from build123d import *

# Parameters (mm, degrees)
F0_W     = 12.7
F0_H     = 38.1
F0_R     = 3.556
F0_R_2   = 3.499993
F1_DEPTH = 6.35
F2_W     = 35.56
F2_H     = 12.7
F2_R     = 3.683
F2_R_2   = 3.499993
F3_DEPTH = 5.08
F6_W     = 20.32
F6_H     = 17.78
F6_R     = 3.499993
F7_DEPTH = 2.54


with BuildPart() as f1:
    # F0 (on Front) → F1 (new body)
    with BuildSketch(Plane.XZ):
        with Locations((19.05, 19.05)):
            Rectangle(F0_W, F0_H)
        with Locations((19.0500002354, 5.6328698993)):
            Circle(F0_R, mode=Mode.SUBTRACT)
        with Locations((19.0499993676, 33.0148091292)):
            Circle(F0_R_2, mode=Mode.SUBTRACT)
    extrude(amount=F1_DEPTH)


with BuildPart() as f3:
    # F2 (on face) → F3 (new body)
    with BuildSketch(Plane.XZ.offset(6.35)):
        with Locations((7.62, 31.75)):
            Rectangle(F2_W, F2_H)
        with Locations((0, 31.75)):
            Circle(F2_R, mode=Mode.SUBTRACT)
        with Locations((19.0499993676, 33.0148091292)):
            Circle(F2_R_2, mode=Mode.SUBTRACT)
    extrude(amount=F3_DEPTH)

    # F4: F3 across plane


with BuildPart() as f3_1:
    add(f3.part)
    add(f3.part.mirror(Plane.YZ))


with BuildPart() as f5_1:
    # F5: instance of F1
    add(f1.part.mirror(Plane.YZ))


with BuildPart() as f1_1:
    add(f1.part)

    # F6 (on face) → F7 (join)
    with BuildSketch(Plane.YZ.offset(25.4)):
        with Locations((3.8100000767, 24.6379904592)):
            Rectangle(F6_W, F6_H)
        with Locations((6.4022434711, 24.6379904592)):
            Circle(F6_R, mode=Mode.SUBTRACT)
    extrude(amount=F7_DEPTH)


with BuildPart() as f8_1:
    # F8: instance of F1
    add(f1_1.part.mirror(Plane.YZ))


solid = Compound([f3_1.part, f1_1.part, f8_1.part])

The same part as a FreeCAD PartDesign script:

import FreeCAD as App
import Part
import Sketcher

V = App.Vector
Q = App.Units.Quantity


def add_polygon(sketch, points):
    """Adds a closed chain of lines whose ends are joined by coincident constraints."""
    first, n = sketch.GeometryCount, len(points)
    for a, b in zip(points, points[1:] + points[:1]):
        sketch.addGeometry(Part.LineSegment(App.Vector(*a, 0), App.Vector(*b, 0)), False)
    for i in range(n):
        sketch.addConstraint(Sketcher.Constraint("Coincident", first + i, 2, first + (i + 1) % n, 1))

doc = App.newDocument("Part")
params = doc.addObject("Spreadsheet::Sheet", "Params")
for row, (alias, value) in enumerate([
    ("sketch1_diameter", "0.28 in"),
    ("sketch1_width", "0.5 in"),
    ("sketch1_height", "1.5 in"),
    ("pad1_length", "0.25 in"),
    ("sketch2_diameter", "0.29 in"),
    ("sketch2_width", "1.4 in"),
    ("sketch2_height", "0.5 in"),
    ("pad2_length", "0.2 in"),
    ("sketch3_width", "0.8 in"),
    ("sketch3_height", "0.7 in"),
    ("pad3_length", "0.1 in"),
], start=1):
    params.set(f"A{row}", alias)
    params.set(f"B{row}", "=" + value)
    params.setAlias(f"B{row}", alias)

body = doc.addObject("PartDesign::Body", "Body")

# Sketch on XZ plane
sketch1 = doc.addObject("Sketcher::SketchObject", "Sketch")
body.addObject(sketch1)
sketch1.AttachmentSupport = (doc.XZ_Plane, [""])
sketch1.MapMode = "FlatFace"
add_polygon(sketch1, [(12.7, 38.1), (12.7, 0), (25.4, 0), (25.4, 38.1)])  # lines 0-3
sketch1.addGeometry(Part.Circle(V(19.1, 5.6, 0), V(0, 0, 1), 3.6), False)  # 4
sketch1.addGeometry(Part.Circle(V(19, 33, 0), V(0, 0, 1), 3.5), False)  # 5
sketch1.addConstraint(Sketcher.Constraint("Vertical", 0))
sketch1.addConstraint(Sketcher.Constraint("Horizontal", 1))
sketch1.addConstraint(Sketcher.Constraint("Vertical", 2))
sketch1.addConstraint(Sketcher.Constraint("Horizontal", 3))
sketch1.addConstraint(Sketcher.Constraint("PointOnObject", 0, 2, -1))
sketch1.addConstraint(Sketcher.Constraint("Vertical", 4, 3, 5, 3))
sketch1.addConstraint(Sketcher.Constraint("Diameter", 4, Q("0.28 in")))
sketch1.addConstraint(Sketcher.Constraint("DistanceX", 1, 1, 1, 2, Q("0.5 in")))
sketch1.addConstraint(Sketcher.Constraint("DistanceY", 0, 2, 0, 1, Q("1.5 in")))
sketch1.addConstraint(Sketcher.Constraint("DistanceX", -1, 1, 1, 2, Q("1 in")))
sketch1.addConstraint(Sketcher.Constraint("DistanceX", -1, 1, 4, 3, Q("0.75 in")))
sketch1.addConstraint(Sketcher.Constraint("Diameter", 5, Q("6.999986 mm")))
sketch1.addConstraint(Sketcher.Constraint("DistanceY", -1, 1, 4, 3, Q("5.63287 mm")))
sketch1.addConstraint(Sketcher.Constraint("DistanceY", -1, 1, 5, 3, Q("33.014809 mm")))
sketch1.setExpression("Constraints[10]", "Params.sketch1_diameter")
sketch1.setExpression("Constraints[11]", "Params.sketch1_width")
sketch1.setExpression("Constraints[12]", "Params.sketch1_height")
pad1 = doc.addObject("PartDesign::Pad", "Pad")
body.addObject(pad1)
pad1.Profile = sketch1
pad1.setExpression("Length", "Params.pad1_length")
body2 = doc.addObject("PartDesign::Body", "Body001")

# Sketch on XZ plane
sketch2 = doc.addObject("Sketcher::SketchObject", "Sketch001")
body2.addObject(sketch2)
sketch2.AttachmentSupport = (doc.getObject("XZ_Plane001"), [""])
sketch2.MapMode = "FlatFace"
sketch2.AttachmentOffset = App.Placement(V(0, 0, 0.25 * 25.4), App.Rotation())
add_polygon(sketch2, [(-10.2, 38.1), (-10.2, 25.4), (25.4, 25.4), (25.4, 38.1)])  # lines 0-3
sketch2.addGeometry(Part.Circle(V(0, 31.8, 0), V(0, 0, 1), 3.7), False)  # 4
sketch2.addGeometry(Part.Circle(V(19, 33, 0), V(0, 0, 1), 3.5), False)  # 5
sketch2.addConstraint(Sketcher.Constraint("Vertical", 0))
sketch2.addConstraint(Sketcher.Constraint("Horizontal", 1))
sketch2.addConstraint(Sketcher.Constraint("Vertical", 2))
sketch2.addConstraint(Sketcher.Constraint("Horizontal", 3))
sketch2.addConstraint(Sketcher.Constraint("PointOnObject", 4, 3, -2))
sketch2.addConstraint(Sketcher.Constraint("Diameter", 4, Q("0.29 in")))
sketch2.addConstraint(Sketcher.Constraint("DistanceX", 1, 1, 1, 2, Q("1.4 in")))
sketch2.addConstraint(Sketcher.Constraint("DistanceY", 0, 2, 0, 1, Q("0.5 in")))
sketch2.addConstraint(Sketcher.Constraint("DistanceY", -1, 1, 0, 2, Q("1 in")))
sketch2.addConstraint(Sketcher.Constraint("DistanceX", -1, 1, 1, 2, Q("1 in")))
sketch2.addConstraint(Sketcher.Constraint("DistanceY", -1, 1, 4, 3, Q("1.25 in")))
sketch2.addConstraint(Sketcher.Constraint("DistanceX", -1, 1, 5, 3, Q("0.75 in")))
sketch2.addConstraint(Sketcher.Constraint("Diameter", 5, Q("6.999986 mm")))
sketch2.addConstraint(Sketcher.Constraint("DistanceY", -1, 1, 5, 3, Q("33.014809 mm")))
sketch2.setExpression("Constraints[9]", "Params.sketch2_diameter")
sketch2.setExpression("Constraints[10]", "Params.sketch2_width")
sketch2.setExpression("Constraints[11]", "Params.sketch2_height")
pad2 = doc.addObject("PartDesign::Pad", "Pad001")
body2.addObject(pad2)
pad2.Profile = sketch2
pad2.setExpression("Length", "Params.pad2_length")
body3 = doc.addObject("PartDesign::Body", "Body002")
doc.recompute()

body3.BaseFeature = body2
doc.recompute()

mirroring = doc.addObject("Part::Mirroring", "Mirroring")
mirroring.Source = body2
mirroring.Base = V(0, 0, 0)
mirroring.Normal = V(1, 0, 0)
body4 = doc.addObject("PartDesign::Body", "Body003")
body4.BaseFeature = mirroring
boolean = doc.addObject("PartDesign::Boolean", "Boolean")
body3.addObject(boolean)
boolean.Type = "Fuse"
boolean.addObjects([body4])
doc.recompute()
body5 = doc.addObject("PartDesign::Body", "Body004")
doc.recompute()

mirroring2 = doc.addObject("Part::Mirroring", "Mirroring001")
mirroring2.Source = body
mirroring2.Base = V(0, 0, 0)
mirroring2.Normal = V(1, 0, 0)
body5.BaseFeature = mirroring2
doc.recompute()

# Sketch on YZ plane
sketch3 = doc.addObject("Sketcher::SketchObject", "Sketch002")
body.addObject(sketch3)
sketch3.AttachmentSupport = (doc.YZ_Plane, [""])
sketch3.MapMode = "FlatFace"
sketch3.AttachmentOffset = App.Placement(V(0, 0, 1 * 25.4), App.Rotation())
add_polygon(sketch3, [(-6.3, 33.5), (-6.3, 15.7), (14, 15.7), (14, 33.5)])  # lines 0-3
sketch3.addGeometry(Part.Circle(V(6.4, 24.6, 0), V(0, 0, 1), 3.5), False)  # 4
sketch3.addConstraint(Sketcher.Constraint("Vertical", 0))
sketch3.addConstraint(Sketcher.Constraint("Horizontal", 1))
sketch3.addConstraint(Sketcher.Constraint("Vertical", 2))
sketch3.addConstraint(Sketcher.Constraint("Horizontal", 3))
sketch3.addConstraint(Sketcher.Constraint("DistanceX", 1, 1, 1, 2, Q("0.8 in")))
sketch3.addConstraint(Sketcher.Constraint("DistanceY", 0, 2, 0, 1, Q("0.7 in")))
sketch3.addConstraint(Sketcher.Constraint("DistanceX", 0, 2, -1, 1, Q("0.25 in")))
sketch3.addConstraint(Sketcher.Constraint("DistanceY", 0, 2, 4, 3, Q("0.35 in")))
sketch3.addConstraint(Sketcher.Constraint("Diameter", 4, Q("6.999986 mm")))
sketch3.addConstraint(Sketcher.Constraint("DistanceY", -1, 1, 4, 3, Q("24.63799 mm")))
sketch3.addConstraint(Sketcher.Constraint("DistanceX", -1, 1, 4, 3, Q("6.402243 mm")))
sketch3.setExpression("Constraints[8]", "Params.sketch3_width")
sketch3.setExpression("Constraints[9]", "Params.sketch3_height")
pad3 = doc.addObject("PartDesign::Pad", "Pad002")
body.addObject(pad3)
pad3.Profile = sketch3
pad3.setExpression("Length", "Params.pad3_length")
body6 = doc.addObject("PartDesign::Body", "Body005")
doc.recompute()

mirroring3 = doc.addObject("Part::Mirroring", "Mirroring002")
mirroring3.Source = body
mirroring3.Base = V(0, 0, 0)
mirroring3.Normal = V(1, 0, 0)
body6.BaseFeature = mirroring3
doc.recompute()
body5.Visibility = False
mirroring.Visibility = False
mirroring2.Visibility = False
mirroring3.Visibility = False

doc.recompute()
